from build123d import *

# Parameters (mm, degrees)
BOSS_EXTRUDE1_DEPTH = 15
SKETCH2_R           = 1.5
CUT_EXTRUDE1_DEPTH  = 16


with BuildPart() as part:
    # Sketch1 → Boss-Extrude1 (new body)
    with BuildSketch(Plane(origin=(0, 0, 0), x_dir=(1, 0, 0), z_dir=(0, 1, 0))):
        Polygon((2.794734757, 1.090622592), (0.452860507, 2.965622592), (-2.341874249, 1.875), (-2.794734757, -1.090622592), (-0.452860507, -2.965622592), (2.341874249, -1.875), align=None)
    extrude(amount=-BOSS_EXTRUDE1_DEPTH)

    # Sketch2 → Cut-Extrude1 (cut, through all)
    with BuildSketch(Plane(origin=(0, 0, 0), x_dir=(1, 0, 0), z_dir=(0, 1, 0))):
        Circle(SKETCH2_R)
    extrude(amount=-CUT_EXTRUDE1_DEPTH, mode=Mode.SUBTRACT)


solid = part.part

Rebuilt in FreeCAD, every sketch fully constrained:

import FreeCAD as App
import Part
import Sketcher
Q = App.Units.Quantity


def add_polygon(sketch, points):
    """Adds a closed chain of lines whose ends are joined by coincident constraints."""
    first, n = sketch.GeometryCount, len(points)
    for a, b in zip(points, points[1:] + points[:1]):
        sketch.addGeometry(Part.LineSegment(App.Vector(*a, 0), App.Vector(*b, 0)), False)
    for i in range(n):
        sketch.addConstraint(Sketcher.Constraint("Coincident", first + i, 2, first + (i + 1) % n, 1))

doc = App.newDocument("Part")
body = doc.addObject("PartDesign::Body", "Body")

# Sketch on XZ plane
sketch1 = doc.addObject("Sketcher::SketchObject", "Sketch")
body.addObject(sketch1)
sketch1.AttachmentSupport = (doc.XZ_Plane, [""])
sketch1.MapMode = "FlatFace"
add_polygon(sketch1, [(2.8, -1.1), (0.5, -3), (-2.3, -1.9), (-2.8, 1.1), (-0.5, 3), (2.3, 1.9)])  # lines 0-5
sketch1.addConstraint([
    Sketcher.Constraint("Symmetric", 0, 2, 3, 2, -1, 1),
    Sketcher.Constraint("Symmetric", 1, 2, 4, 2, -1, 1),
    Sketcher.Constraint("Symmetric", 2, 2, 5, 2, -1, 1),
    Sketcher.Constraint("Equal", 0, 1),
    Sketcher.Constraint("Equal", 1, 2),
    Sketcher.Constraint("Distance", 0, Q("3 mm")),
    Sketcher.Constraint("DistanceY", 1, 2, 4, 2, Q("3.75 mm")),
    Sketcher.Constraint("DistanceY", 2, 2, 3, 2, Q("1.875 mm")),
    Sketcher.Constraint("DistanceX", -1, 1, 0, 2, Q("0.452861 mm")),
])
pad1 = doc.addObject("PartDesign::Pad", "Pad")
body.addObject(pad1)
pad1.Profile = sketch1
pad1.Length = 15

# Sketch on XZ plane
sketch2 = doc.addObject("Sketcher::SketchObject", "Sketch001")
body.addObject(sketch2)
sketch2.AttachmentSupport = (doc.XZ_Plane, [""])
sketch2.MapMode = "FlatFace"
sketch2.addGeometry(Part.Circle(App.Vector(0, 0, 0), App.Vector(0, 0, 1), 1.5), False)
sketch2.addConstraint([
    Sketcher.Constraint("Coincident", 0, 3, -1, 1),
    Sketcher.Constraint("Diameter", 0, Q("3 mm")),
])
pocket1 = doc.addObject("PartDesign::Pocket", "Pocket")
body.addObject(pocket1)
pocket1.Profile = sketch2
pocket1.Type = "ThroughAll"
pocket1.Reversed = True

doc.recompute()
